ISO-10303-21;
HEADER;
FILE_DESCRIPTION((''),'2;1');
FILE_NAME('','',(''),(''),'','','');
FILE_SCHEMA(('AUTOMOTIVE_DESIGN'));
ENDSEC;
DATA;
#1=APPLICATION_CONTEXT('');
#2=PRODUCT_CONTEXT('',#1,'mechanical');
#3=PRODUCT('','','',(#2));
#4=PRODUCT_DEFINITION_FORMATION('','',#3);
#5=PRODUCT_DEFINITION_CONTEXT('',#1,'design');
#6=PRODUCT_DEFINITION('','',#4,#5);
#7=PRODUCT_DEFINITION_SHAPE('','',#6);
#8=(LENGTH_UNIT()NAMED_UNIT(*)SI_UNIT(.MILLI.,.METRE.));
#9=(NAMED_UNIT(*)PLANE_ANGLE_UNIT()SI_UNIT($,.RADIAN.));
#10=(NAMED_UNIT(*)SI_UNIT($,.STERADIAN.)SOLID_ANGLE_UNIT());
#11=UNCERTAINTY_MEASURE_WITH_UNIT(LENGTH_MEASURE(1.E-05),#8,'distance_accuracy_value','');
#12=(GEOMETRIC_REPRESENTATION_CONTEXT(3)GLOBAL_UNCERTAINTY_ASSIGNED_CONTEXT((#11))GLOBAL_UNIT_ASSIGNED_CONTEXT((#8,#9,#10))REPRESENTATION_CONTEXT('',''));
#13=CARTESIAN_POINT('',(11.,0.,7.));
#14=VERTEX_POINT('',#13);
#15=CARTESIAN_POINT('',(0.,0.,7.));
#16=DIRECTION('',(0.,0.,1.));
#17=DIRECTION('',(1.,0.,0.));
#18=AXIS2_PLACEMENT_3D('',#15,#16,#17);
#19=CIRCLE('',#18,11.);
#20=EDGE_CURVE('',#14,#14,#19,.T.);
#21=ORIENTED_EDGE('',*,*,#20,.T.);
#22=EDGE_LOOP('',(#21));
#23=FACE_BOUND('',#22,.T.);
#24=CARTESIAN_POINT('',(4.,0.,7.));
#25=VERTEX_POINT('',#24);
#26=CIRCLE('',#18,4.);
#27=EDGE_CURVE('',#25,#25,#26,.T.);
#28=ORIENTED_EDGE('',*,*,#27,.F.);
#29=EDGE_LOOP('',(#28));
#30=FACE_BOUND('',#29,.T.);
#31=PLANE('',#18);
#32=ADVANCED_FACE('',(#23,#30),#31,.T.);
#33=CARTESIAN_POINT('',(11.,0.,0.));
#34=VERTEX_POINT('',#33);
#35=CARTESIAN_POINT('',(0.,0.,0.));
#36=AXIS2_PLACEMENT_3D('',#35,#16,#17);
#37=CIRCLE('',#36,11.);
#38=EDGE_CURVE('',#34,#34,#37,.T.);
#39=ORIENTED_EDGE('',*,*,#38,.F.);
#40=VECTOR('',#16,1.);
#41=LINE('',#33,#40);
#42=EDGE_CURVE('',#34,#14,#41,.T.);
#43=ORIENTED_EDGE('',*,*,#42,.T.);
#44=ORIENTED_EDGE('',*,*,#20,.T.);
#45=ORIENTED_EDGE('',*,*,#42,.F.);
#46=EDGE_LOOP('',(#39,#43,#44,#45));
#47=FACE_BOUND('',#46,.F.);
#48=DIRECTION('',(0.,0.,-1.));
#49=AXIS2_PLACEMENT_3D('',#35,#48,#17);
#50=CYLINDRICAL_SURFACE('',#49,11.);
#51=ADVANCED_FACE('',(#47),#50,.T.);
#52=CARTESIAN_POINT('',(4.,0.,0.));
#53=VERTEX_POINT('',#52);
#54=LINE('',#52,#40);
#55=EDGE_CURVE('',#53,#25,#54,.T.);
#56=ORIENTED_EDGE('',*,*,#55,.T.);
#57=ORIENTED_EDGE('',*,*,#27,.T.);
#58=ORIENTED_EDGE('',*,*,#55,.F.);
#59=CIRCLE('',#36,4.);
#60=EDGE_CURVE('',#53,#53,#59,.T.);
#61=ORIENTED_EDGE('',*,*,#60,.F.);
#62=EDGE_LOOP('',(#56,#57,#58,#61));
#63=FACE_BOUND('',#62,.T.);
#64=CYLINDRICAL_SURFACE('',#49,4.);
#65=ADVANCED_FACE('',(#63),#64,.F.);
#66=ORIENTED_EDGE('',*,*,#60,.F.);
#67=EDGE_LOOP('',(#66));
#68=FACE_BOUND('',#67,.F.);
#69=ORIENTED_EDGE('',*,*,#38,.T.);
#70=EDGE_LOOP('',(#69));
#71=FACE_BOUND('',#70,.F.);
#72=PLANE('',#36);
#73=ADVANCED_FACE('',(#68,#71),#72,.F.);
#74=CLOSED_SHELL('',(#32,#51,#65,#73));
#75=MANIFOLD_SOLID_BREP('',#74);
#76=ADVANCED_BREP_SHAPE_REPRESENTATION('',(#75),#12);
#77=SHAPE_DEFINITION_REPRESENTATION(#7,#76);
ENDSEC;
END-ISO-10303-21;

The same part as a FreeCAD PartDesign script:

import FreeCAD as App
import Part
import Sketcher

V = App.Vector
Q = App.Units.Quantity

doc = App.newDocument("Part")
body = doc.addObject("PartDesign::Body", "Body")

sketch1 = body.newObject("Sketcher::SketchObject", "Sketch")
sketch1.AttachmentSupport = (doc.getObject("XY_Plane"), [""])
sketch1.MapMode = "FlatFace"
sketch1.addGeometry(Part.Circle(V(0, 0, 0), V(0, 0, 1), 11), False)
sketch1.addGeometry(Part.Circle(V(0, 0, 0), V(0, 0, 1), 4), False)
sketch1.addConstraint(Sketcher.Constraint("Coincident", 0, 3, -1, 1))
sketch1.addConstraint(Sketcher.Constraint("Coincident", 1, 3, -1, 1))
sketch1.addConstraint(Sketcher.Constraint("Diameter", 0, Q("22 mm")))
sketch1.addConstraint(Sketcher.Constraint("Diameter", 1, Q("8 mm")))
pad1 = body.newObject("PartDesign::Pad", "Pad")
pad1.Profile = sketch1
pad1.Length = 7

doc.recompute()
